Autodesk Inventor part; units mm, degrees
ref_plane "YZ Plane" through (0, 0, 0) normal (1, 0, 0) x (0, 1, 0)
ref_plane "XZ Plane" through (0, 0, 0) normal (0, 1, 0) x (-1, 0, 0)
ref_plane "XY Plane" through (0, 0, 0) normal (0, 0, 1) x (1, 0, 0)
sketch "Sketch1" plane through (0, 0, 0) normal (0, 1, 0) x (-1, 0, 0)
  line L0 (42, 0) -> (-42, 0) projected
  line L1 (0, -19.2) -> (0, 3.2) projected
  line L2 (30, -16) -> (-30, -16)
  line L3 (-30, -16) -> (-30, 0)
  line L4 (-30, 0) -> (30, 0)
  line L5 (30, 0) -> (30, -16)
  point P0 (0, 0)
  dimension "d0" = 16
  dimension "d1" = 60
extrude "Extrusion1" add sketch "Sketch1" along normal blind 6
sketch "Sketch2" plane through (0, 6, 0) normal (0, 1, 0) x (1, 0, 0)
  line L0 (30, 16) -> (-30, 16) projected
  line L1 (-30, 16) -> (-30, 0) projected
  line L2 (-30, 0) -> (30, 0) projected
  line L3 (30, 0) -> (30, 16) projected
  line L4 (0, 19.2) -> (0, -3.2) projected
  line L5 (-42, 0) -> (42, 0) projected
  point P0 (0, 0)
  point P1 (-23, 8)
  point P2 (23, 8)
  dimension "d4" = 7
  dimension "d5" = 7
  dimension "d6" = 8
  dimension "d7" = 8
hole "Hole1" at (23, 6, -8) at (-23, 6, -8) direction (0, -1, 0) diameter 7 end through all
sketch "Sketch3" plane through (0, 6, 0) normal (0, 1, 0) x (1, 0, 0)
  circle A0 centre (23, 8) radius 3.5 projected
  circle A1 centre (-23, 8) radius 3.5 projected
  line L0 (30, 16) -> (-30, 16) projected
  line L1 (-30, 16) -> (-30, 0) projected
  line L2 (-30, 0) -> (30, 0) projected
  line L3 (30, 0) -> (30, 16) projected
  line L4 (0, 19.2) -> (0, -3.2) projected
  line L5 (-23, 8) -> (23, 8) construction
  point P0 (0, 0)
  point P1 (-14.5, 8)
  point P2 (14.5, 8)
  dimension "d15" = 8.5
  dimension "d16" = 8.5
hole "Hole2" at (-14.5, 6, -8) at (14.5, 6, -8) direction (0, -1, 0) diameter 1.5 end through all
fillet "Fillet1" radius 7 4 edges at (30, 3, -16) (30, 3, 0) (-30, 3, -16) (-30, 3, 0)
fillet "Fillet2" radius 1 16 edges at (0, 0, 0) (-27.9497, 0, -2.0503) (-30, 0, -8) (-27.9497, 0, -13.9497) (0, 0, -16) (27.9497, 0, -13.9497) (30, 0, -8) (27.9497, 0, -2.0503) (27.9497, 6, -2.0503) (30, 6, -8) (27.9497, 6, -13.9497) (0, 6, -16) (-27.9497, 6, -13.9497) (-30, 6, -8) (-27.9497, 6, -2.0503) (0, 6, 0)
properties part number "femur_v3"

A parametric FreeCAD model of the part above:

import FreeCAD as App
import Part
import Sketcher

V = App.Vector
Q = App.Units.Quantity


def edges_at(feature, points):
    """Names of the edges that pass closest to the given points."""
    edges = feature.Shape.Edges
    near = lambda p: min(range(len(edges)), key=lambda i: edges[i].distToShape(Part.Vertex(*p))[0])
    return sorted({f"Edge{near(p) + 1}" for p in points})


def add_polygon(sketch, points):
    """Adds a closed chain of lines whose ends are joined by coincident constraints."""
    first, n = sketch.GeometryCount, len(points)
    for a, b in zip(points, points[1:] + points[:1]):
        sketch.addGeometry(Part.LineSegment(App.Vector(*a, 0), App.Vector(*b, 0)), False)
    for i in range(n):
        sketch.addConstraint(Sketcher.Constraint("Coincident", first + i, 2, first + (i + 1) % n, 1))

doc = App.newDocument("Part")
body = doc.addObject("PartDesign::Body", "Body")

# Sketch on XZ plane
sketch1 = doc.addObject("Sketcher::SketchObject", "Sketch")
body.addObject(sketch1)
sketch1.AttachmentSupport = (doc.XZ_Plane, [""])
sketch1.MapMode = "FlatFace"
add_polygon(sketch1, [(-30, -16), (-30, 0), (30, 0), (30, -16)])  # lines 0-3
sketch1.addConstraint(Sketcher.Constraint("Vertical", 0))
sketch1.addConstraint(Sketcher.Constraint("Horizontal", 1))
sketch1.addConstraint(Sketcher.Constraint("Vertical", 2))
sketch1.addConstraint(Sketcher.Constraint("Horizontal", 3))
sketch1.addConstraint(Sketcher.Constraint("Symmetric", 0, 2, 1, 2, -1, 1))
sketch1.addConstraint(Sketcher.Constraint("DistanceX", 1, 1, 1, 2, Q("60 mm")))
sketch1.addConstraint(Sketcher.Constraint("DistanceY", 0, 1, 0, 2, Q("16 mm")))
pad1 = doc.addObject("PartDesign::Pad", "Pad")
body.addObject(pad1)
pad1.Profile = sketch1
pad1.Length = 6
pad1.Reversed = True

# Sketch on XZ plane
sketch2 = doc.addObject("Sketcher::SketchObject", "Sketch001")
body.addObject(sketch2)
sketch2.AttachmentSupport = (doc.XZ_Plane, [""])
sketch2.MapMode = "FlatFace"
sketch2.AttachmentOffset = App.Placement(V(0, 0, -6), App.Rotation())
sketch2.addGeometry(Part.Circle(V(23, -8, 0), V(0, 0, 1), 3.5), False)
sketch2.addGeometry(Part.Circle(V(-23, -8, 0), V(0, 0, 1), 3.5), False)
sketch2.addConstraint(Sketcher.Constraint("Equal", 0, 1))
sketch2.addConstraint(Sketcher.Constraint("Symmetric", 0, 3, 1, 3, -2))
sketch2.addConstraint(Sketcher.Constraint("Diameter", 0, Q("7 mm")))
sketch2.addConstraint(Sketcher.Constraint("DistanceX", -1, 1, 0, 3, Q("23 mm")))
sketch2.addConstraint(Sketcher.Constraint("DistanceY", 0, 3, -1, 1, Q("8 mm")))
doc.recompute()
hole = doc.addObject("PartDesign::Hole", "Hole")
body.addObject(hole)
hole.Profile = sketch2
hole.ThreadType = "None"
hole.Diameter = 7
hole.DepthType = "ThroughAll"
hole.Reversed = True

# Sketch on XZ plane
sketch3 = doc.addObject("Sketcher::SketchObject", "Sketch002")
body.addObject(sketch3)
sketch3.AttachmentSupport = (doc.XZ_Plane, [""])
sketch3.MapMode = "FlatFace"
sketch3.AttachmentOffset = App.Placement(V(0, 0, -6), App.Rotation())
sketch3.addGeometry(Part.Circle(V(-14.5, -8, 0), V(0, 0, 1), 0.75), False)
sketch3.addGeometry(Part.Circle(V(14.5, -8, 0), V(0, 0, 1), 0.75), False)
sketch3.addConstraint(Sketcher.Constraint("Equal", 0, 1))
sketch3.addConstraint(Sketcher.Constraint("Symmetric", 0, 3, 1, 3, -2))
sketch3.addConstraint(Sketcher.Constraint("Diameter", 0, Q("1.5 mm")))
sketch3.addConstraint(Sketcher.Constraint("DistanceY", 0, 3, -1, 1, Q("8 mm")))
sketch3.addConstraint(Sketcher.Constraint("DistanceX", 0, 3, 1, 3, Q("29 mm")))
doc.recompute()
hole2 = doc.addObject("PartDesign::Hole", "Hole001")
body.addObject(hole2)
hole2.Profile = sketch3
hole2.ThreadType = "None"
hole2.Diameter = 1.5
hole2.DepthType = "ThroughAll"
hole2.Reversed = True
doc.recompute()

fillet = doc.addObject("PartDesign::Fillet", "Fillet")
body.addObject(fillet)
fillet.Base = (hole2, edges_at(hole2, [
    (30, 3, -16),
    (30, 3, 0),
    (-30, 3, -16),
    (-30, 3, 0),
]))
fillet.Radius = 7
doc.recompute()

fillet2 = doc.addObject("PartDesign::Fillet", "Fillet001")
body.addObject(fillet2)
fillet2.Base = (fillet, edges_at(fillet, [
    (0, 0, 0),
    (-27.95, 0, -2.05),
    (-30, 0, -8),
    (-27.95, 0, -13.95),
    (0, 0, -16),
    (27.95, 0, -13.95),
    (30, 0, -8),
    (27.95, 0, -2.05),
    (27.95, 6, -2.05),
    (30, 6, -8),
    (27.95, 6, -13.95),
    (0, 6, -16),
    (-27.95, 6, -13.95),
    (-30, 6, -8),
    (-27.95, 6, -2.05),
    (0, 6, 0),
]))
fillet2.Radius = 1

doc.recompute()
